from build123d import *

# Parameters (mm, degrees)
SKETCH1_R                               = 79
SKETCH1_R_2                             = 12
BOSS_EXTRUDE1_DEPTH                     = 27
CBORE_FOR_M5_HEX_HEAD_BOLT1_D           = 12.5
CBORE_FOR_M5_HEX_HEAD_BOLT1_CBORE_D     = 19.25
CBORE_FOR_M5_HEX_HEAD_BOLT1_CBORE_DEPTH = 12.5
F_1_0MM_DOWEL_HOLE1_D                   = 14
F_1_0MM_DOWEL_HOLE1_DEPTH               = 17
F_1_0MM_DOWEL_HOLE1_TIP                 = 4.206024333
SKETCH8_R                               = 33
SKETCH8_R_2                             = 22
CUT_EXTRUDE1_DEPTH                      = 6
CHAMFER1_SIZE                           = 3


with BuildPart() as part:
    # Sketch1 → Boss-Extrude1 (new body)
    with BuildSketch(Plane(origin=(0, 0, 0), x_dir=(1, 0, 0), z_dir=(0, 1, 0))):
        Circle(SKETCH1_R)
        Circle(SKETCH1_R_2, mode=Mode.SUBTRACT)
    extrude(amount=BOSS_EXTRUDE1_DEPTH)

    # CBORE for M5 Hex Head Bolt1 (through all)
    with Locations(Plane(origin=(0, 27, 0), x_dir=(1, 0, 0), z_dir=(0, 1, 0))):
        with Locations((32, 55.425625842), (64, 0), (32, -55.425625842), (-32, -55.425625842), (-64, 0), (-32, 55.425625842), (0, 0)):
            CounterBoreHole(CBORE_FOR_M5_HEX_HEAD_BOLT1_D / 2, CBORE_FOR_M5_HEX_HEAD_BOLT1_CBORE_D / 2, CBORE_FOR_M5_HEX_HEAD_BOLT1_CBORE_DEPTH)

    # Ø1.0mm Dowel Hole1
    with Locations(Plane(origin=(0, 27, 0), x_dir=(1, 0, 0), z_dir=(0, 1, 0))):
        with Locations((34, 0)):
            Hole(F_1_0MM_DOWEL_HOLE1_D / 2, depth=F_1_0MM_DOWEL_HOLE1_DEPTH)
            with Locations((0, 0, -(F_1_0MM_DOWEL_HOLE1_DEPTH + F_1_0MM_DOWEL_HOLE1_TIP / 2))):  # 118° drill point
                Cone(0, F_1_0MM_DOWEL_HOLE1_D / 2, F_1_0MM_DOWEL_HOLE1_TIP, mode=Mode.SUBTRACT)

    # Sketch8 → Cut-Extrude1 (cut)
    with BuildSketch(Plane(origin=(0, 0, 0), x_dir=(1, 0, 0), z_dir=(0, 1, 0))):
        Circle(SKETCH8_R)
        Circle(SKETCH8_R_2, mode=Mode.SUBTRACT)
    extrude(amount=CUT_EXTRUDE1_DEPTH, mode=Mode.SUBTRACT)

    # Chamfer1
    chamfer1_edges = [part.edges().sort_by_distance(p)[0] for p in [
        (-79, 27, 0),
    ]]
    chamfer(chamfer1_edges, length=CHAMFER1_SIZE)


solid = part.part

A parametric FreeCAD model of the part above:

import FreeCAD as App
import Part
import Sketcher
from FreeCAD import Vector


def edges_at(feature, points):
    """Names of the edges that pass closest to the given points."""
    edges = feature.Shape.Edges
    near = lambda p: min(range(len(edges)), key=lambda i: edges[i].distToShape(Part.Vertex(*p))[0])
    return sorted({f"Edge{near(p) + 1}" for p in points})

doc = App.newDocument("Part")
body = doc.addObject("PartDesign::Body", "Body")

# Sketch on XZ plane
sketch1 = doc.addObject("Sketcher::SketchObject", "Sketch")
body.addObject(sketch1)
sketch1.AttachmentSupport = (doc.XZ_Plane, [""])
sketch1.MapMode = "FlatFace"
sketch1.addGeometry(Part.Circle(Vector(0, 0, 0), Vector(0, 0, 1), 79), False)
sketch1.addGeometry(Part.Circle(Vector(0, 0, 0), Vector(0, 0, 1), 12), False)
sketch1.addConstraint(Sketcher.Constraint("Coincident", 0, 3, -1, 1))
sketch1.addConstraint(Sketcher.Constraint("Coincident", 1, 3, -1, 1))
sketch1.addConstraint(Sketcher.Constraint("Diameter", 0, 158.0))
sketch1.addConstraint(Sketcher.Constraint("Diameter", 1, 24.0))
pad1 = doc.addObject("PartDesign::Pad", "Pad")
body.addObject(pad1)
pad1.Profile = sketch1
pad1.Length = 27
pad1.Reversed = True

# Sketch on XZ plane
sketch2 = doc.addObject("Sketcher::SketchObject", "Sketch001")
body.addObject(sketch2)
sketch2.AttachmentSupport = (doc.XZ_Plane, [""])
sketch2.MapMode = "FlatFace"
sketch2.AttachmentOffset = App.Placement(Vector(0, 0, -27), App.Rotation())
sketch2.addGeometry(Part.Circle(Vector(32, -55.425626, 0), Vector(0, 0, 1), 6.25), False)
sketch2.addGeometry(Part.Circle(Vector(64, 0, 0), Vector(0, 0, 1), 6.25), False)
sketch2.addGeometry(Part.Circle(Vector(32, 55.425626, 0), Vector(0, 0, 1), 6.25), False)
sketch2.addGeometry(Part.Circle(Vector(-32, 55.425626, 0), Vector(0, 0, 1), 6.25), False)
sketch2.addGeometry(Part.Circle(Vector(-64, 0, 0), Vector(0, 0, 1), 6.25), False)
sketch2.addGeometry(Part.Circle(Vector(-32, -55.425626, 0), Vector(0, 0, 1), 6.25), False)
sketch2.addGeometry(Part.Circle(Vector(0, 0, 0), Vector(0, 0, 1), 6.25), False)
sketch2.addConstraint(Sketcher.Constraint("Coincident", 6, 3, -1, 1))
sketch2.addConstraint(Sketcher.Constraint("Equal", 0, 1))
sketch2.addConstraint(Sketcher.Constraint("Equal", 1, 2))
sketch2.addConstraint(Sketcher.Constraint("Equal", 2, 3))
sketch2.addConstraint(Sketcher.Constraint("Equal", 3, 4))
sketch2.addConstraint(Sketcher.Constraint("Equal", 4, 5))
sketch2.addConstraint(Sketcher.Constraint("Equal", 5, 6))
sketch2.addConstraint(Sketcher.Constraint("Symmetric", 0, 3, 3, 3, -1, 1))
sketch2.addConstraint(Sketcher.Constraint("Symmetric", 1, 3, 4, 3, -1, 1))
sketch2.addConstraint(Sketcher.Constraint("Symmetric", 2, 3, 5, 3, -1, 1))
sketch2.addConstraint(Sketcher.Constraint("Symmetric", 2, 3, 3, 3, -2))
sketch2.addConstraint(Sketcher.Constraint("PointOnObject", 1, 3, -1))
sketch2.addConstraint(Sketcher.Constraint("Diameter", 0, 12.5))
sketch2.addConstraint(Sketcher.Constraint("DistanceX", -1, 1, 0, 3, 32.0))
sketch2.addConstraint(Sketcher.Constraint("DistanceX", -1, 1, 1, 3, 64.0))
sketch2.addConstraint(Sketcher.Constraint("DistanceY", 0, 3, 2, 3, 110.851252))
doc.recompute()
hole = doc.addObject("PartDesign::Hole", "Hole")
body.addObject(hole)
hole.Profile = sketch2
hole.ThreadType = "None"
hole.Diameter = 12.5
hole.DepthType = "ThroughAll"
hole.HoleCutType = "Counterbore"
hole.HoleCutDiameter = 19.25
hole.HoleCutDepth = 12.5
hole.Reversed = True

# Sketch on XZ plane
sketch3 = doc.addObject("Sketcher::SketchObject", "Sketch002")
body.addObject(sketch3)
sketch3.AttachmentSupport = (doc.XZ_Plane, [""])
sketch3.MapMode = "FlatFace"
sketch3.AttachmentOffset = App.Placement(Vector(0, 0, -27), App.Rotation())
sketch3.addGeometry(Part.Circle(Vector(34, 0, 0), Vector(0, 0, 1), 7), False)
sketch3.addConstraint(Sketcher.Constraint("PointOnObject", 0, 3, -1))
sketch3.addConstraint(Sketcher.Constraint("Diameter", 0, 14.0))
sketch3.addConstraint(Sketcher.Constraint("DistanceX", -1, 1, 0, 3, 34.0))
doc.recompute()
hole2 = doc.addObject("PartDesign::Hole", "Hole001")
body.addObject(hole2)
hole2.Profile = sketch3
hole2.ThreadType = "None"
hole2.Diameter = 14
hole2.DepthType = "Dimension"
hole2.Depth = 17
hole2.DrillPoint = "Angled"
hole2.DrillPointAngle = 118
hole2.Reversed = True

# Sketch on XZ plane
sketch4 = doc.addObject("Sketcher::SketchObject", "Sketch003")
body.addObject(sketch4)
sketch4.AttachmentSupport = (doc.XZ_Plane, [""])
sketch4.MapMode = "FlatFace"
sketch4.addGeometry(Part.Circle(Vector(0, 0, 0), Vector(0, 0, 1), 33), False)
sketch4.addGeometry(Part.Circle(Vector(0, 0, 0), Vector(0, 0, 1), 22), False)
sketch4.addConstraint(Sketcher.Constraint("Coincident", 0, 3, -1, 1))
sketch4.addConstraint(Sketcher.Constraint("Coincident", 1, 3, -1, 1))
sketch4.addConstraint(Sketcher.Constraint("Diameter", 0, 66.0))
sketch4.addConstraint(Sketcher.Constraint("Diameter", 1, 44.0))
pocket1 = doc.addObject("PartDesign::Pocket", "Pocket")
body.addObject(pocket1)
pocket1.Profile = sketch4
pocket1.Length = 6
doc.recompute()

chamfer = doc.addObject("PartDesign::Chamfer", "Chamfer")
body.addObject(chamfer)
chamfer.Base = (pocket1, edges_at(pocket1, [(-79, 27, 0)]))
chamfer.Size = 3

doc.recompute()
